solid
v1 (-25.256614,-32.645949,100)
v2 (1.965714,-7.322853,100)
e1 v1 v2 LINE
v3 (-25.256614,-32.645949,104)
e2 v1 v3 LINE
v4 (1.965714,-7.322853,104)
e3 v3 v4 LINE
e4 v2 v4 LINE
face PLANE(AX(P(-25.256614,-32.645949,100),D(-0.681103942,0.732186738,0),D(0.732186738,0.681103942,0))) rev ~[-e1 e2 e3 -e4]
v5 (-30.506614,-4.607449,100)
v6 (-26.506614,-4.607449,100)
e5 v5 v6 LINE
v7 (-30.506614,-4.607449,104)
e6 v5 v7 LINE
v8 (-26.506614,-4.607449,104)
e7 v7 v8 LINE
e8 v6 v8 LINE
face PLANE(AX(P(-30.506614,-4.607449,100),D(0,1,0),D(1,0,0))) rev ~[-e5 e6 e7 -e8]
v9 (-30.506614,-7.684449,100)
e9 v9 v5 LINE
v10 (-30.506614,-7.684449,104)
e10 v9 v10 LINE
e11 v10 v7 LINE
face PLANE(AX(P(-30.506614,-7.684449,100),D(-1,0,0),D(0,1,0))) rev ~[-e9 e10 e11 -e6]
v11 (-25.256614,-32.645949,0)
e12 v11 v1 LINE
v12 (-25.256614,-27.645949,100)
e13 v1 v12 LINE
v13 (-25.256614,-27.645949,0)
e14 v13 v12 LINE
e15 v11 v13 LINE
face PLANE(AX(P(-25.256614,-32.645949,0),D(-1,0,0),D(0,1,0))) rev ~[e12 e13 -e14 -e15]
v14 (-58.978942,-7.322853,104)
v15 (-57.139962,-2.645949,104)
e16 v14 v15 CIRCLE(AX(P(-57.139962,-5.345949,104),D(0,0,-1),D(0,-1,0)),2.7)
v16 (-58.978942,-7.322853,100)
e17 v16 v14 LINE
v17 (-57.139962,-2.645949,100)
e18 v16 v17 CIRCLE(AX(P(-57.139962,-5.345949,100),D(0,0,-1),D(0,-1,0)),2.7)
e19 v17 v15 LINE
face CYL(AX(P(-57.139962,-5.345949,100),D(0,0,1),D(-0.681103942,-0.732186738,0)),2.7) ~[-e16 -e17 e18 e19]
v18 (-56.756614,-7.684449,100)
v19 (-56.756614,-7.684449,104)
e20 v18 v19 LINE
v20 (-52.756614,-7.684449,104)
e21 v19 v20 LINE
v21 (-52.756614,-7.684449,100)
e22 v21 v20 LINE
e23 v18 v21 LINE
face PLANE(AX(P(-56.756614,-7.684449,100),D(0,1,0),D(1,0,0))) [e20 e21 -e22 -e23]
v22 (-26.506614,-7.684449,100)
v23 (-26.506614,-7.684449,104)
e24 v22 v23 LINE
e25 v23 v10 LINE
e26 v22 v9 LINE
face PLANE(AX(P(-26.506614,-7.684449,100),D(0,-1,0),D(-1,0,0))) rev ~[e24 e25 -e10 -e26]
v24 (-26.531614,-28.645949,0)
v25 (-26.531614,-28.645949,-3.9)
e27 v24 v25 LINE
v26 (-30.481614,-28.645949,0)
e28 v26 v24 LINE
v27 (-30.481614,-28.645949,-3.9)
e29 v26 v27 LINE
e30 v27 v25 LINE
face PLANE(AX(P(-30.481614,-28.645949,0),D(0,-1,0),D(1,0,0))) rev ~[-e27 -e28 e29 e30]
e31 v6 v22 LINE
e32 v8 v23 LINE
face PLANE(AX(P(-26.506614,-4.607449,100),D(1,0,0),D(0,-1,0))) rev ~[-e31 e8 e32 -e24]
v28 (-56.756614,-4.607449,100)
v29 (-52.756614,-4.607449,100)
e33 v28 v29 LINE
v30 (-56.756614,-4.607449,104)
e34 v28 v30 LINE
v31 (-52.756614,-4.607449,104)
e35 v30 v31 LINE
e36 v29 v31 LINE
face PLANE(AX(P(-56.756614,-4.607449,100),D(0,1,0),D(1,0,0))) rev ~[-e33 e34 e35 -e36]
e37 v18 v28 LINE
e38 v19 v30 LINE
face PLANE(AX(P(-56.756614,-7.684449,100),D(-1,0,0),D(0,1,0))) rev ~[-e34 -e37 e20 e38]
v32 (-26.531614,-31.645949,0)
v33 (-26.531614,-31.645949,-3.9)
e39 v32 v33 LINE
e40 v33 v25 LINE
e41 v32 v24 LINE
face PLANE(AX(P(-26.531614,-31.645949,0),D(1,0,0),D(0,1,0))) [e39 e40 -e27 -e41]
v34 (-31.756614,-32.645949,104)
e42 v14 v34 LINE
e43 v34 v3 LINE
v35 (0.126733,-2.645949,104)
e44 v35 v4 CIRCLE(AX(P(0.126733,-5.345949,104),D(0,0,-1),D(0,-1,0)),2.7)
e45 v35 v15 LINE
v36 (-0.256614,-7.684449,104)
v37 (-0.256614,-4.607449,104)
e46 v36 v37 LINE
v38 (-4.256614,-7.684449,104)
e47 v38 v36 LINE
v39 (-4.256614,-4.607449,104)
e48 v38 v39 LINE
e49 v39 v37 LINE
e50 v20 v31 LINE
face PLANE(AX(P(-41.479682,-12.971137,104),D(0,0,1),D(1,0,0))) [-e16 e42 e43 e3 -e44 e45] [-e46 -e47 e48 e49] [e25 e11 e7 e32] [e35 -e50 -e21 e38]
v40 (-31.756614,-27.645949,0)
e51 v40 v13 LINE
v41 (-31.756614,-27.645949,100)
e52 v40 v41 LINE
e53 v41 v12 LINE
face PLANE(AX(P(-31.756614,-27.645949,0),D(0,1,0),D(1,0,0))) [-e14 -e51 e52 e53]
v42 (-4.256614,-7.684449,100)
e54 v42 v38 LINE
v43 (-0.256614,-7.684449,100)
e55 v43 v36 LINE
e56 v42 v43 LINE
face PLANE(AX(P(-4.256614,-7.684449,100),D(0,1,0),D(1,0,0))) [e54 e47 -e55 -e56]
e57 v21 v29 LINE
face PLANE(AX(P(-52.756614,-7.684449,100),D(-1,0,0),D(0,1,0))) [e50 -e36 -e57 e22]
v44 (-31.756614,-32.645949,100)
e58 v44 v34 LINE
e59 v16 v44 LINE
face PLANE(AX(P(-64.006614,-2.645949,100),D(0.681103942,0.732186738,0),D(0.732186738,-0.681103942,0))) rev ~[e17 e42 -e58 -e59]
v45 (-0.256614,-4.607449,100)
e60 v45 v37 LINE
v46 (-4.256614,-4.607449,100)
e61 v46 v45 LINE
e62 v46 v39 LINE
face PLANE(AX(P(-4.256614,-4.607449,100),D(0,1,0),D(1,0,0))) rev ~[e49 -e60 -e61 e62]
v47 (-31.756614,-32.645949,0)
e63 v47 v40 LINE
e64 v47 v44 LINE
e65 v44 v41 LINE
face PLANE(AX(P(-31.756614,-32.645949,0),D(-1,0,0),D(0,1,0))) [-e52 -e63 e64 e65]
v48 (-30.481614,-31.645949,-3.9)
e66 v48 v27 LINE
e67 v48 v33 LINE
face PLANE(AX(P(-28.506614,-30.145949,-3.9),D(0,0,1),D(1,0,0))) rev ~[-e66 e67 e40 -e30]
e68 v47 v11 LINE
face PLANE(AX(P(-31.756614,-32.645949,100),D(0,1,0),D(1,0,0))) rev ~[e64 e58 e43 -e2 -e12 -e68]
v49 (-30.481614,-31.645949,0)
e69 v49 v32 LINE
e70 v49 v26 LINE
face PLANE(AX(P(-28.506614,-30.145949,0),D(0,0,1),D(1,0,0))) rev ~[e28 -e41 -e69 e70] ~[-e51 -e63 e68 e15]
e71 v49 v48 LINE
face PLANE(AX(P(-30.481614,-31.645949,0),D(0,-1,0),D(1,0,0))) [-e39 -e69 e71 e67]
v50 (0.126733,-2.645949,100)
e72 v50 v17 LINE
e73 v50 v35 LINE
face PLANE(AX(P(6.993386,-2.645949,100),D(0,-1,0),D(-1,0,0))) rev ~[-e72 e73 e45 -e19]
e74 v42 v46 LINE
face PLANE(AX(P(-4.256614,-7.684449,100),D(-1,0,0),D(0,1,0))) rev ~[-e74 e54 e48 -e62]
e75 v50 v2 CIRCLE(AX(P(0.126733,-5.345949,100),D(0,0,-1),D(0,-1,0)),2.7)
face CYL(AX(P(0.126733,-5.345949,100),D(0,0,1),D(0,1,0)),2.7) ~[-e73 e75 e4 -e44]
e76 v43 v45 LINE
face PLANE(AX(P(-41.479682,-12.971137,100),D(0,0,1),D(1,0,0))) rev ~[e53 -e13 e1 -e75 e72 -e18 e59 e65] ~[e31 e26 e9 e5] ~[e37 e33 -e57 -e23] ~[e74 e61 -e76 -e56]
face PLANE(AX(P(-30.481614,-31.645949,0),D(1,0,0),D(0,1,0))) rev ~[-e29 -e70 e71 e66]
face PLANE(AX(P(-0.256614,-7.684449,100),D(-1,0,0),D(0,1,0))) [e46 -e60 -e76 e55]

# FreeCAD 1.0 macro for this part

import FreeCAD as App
import Part
import Sketcher


def edges_at(feature, points):
    """Names of the edges that pass closest to the given points."""
    edges = feature.Shape.Edges
    near = lambda p: min(range(len(edges)), key=lambda i: edges[i].distToShape(Part.Vertex(*p))[0])
    return sorted({f"Edge{near(p) + 1}" for p in points})

doc = App.newDocument("Part")
body = doc.addObject("PartDesign::Body", "Body")

sketch1 = body.newObject("Sketcher::SketchObject", "Sketch")
sketch1.AttachmentSupport = (doc.getObject("XY_Plane"), [""])
sketch1.MapMode = "FlatFace"
sketch1.addGeometry(Part.LineSegment(App.Vector(-30.5, -28.6, 0), App.Vector(-30.5, -31.6, 0)), False)
sketch1.addGeometry(Part.LineSegment(App.Vector(-30.5, -31.6, 0), App.Vector(-26.5, -31.6, 0)), False)
sketch1.addGeometry(Part.LineSegment(App.Vector(-26.5, -31.6, 0), App.Vector(-26.5, -28.6, 0)), False)
sketch1.addGeometry(Part.LineSegment(App.Vector(-26.5, -28.6, 0), App.Vector(-30.5, -28.6, 0)), False)
sketch1.addConstraint(Sketcher.Constraint("Coincident", 0, 2, 1, 1))
sketch1.addConstraint(Sketcher.Constraint("Coincident", 1, 2, 2, 1))
sketch1.addConstraint(Sketcher.Constraint("Coincident", 2, 2, 3, 1))
sketch1.addConstraint(Sketcher.Constraint("Coincident", 3, 2, 0, 1))
sketch1.addConstraint(Sketcher.Constraint("Vertical", 0))
sketch1.addConstraint(Sketcher.Constraint("Horizontal", 1))
sketch1.addConstraint(Sketcher.Constraint("Vertical", 2))
sketch1.addConstraint(Sketcher.Constraint("Horizontal", 3))
sketch1.addConstraint(Sketcher.Constraint("DistanceY", 0, 2, 0, 1, 3.0))
sketch1.addConstraint(Sketcher.Constraint("DistanceX", 1, 1, 1, 2, 3.95))
sketch1.addConstraint(Sketcher.Constraint("DistanceY", 0, 2, -1, 1, 31.645949))
sketch1.addConstraint(Sketcher.Constraint("DistanceX", 0, 2, -1, 1, 30.481614))
pad1 = body.newObject("PartDesign::Pad", "Pad")
pad1.Profile = sketch1
pad1.Length = 3.9
pad1.Reversed = True

sketch2 = body.newObject("Sketcher::SketchObject", "Sketch001")
sketch2.AttachmentSupport = (doc.getObject("XY_Plane"), [""])
sketch2.MapMode = "FlatFace"
sketch2.addGeometry(Part.LineSegment(App.Vector(-32, -28, 0), App.Vector(-32, -33, 0)), False)
sketch2.addGeometry(Part.LineSegment(App.Vector(-32, -33, 0), App.Vector(-25, -33, 0)), False)
sketch2.addGeometry(Part.LineSegment(App.Vector(-25, -33, 0), App.Vector(-25, -28, 0)), False)
sketch2.addGeometry(Part.LineSegment(App.Vector(-25, -28, 0), App.Vector(-32, -28, 0)), False)
sketch2.addConstraint(Sketcher.Constraint("Coincident", 0, 2, 1, 1))
sketch2.addConstraint(Sketcher.Constraint("Coincident", 1, 2, 2, 1))
sketch2.addConstraint(Sketcher.Constraint("Coincident", 2, 2, 3, 1))
sketch2.addConstraint(Sketcher.Constraint("Coincident", 3, 2, 0, 1))
sketch2.addConstraint(Sketcher.Constraint("Vertical", 0))
sketch2.addConstraint(Sketcher.Constraint("Horizontal", 1))
sketch2.addConstraint(Sketcher.Constraint("Vertical", 2))
sketch2.addConstraint(Sketcher.Constraint("Horizontal", 3))
sketch2.addConstraint(Sketcher.Constraint("DistanceY", 0, 2, 0, 1, 5.0))
sketch2.addConstraint(Sketcher.Constraint("DistanceX", 1, 1, 1, 2, 6.5))
sketch2.addConstraint(Sketcher.Constraint("DistanceY", 0, 2, -1, 1, 32.645949))
sketch2.addConstraint(Sketcher.Constraint("DistanceX", 0, 2, -1, 1, 31.756614))
pad2 = body.newObject("PartDesign::Pad", "Pad001")
pad2.Profile = sketch2
pad2.Length = 100

sketch3 = body.newObject("Sketcher::SketchObject", "Sketch002")
sketch3.AttachmentSupport = (doc.getObject("XY_Plane"), [""])
sketch3.MapMode = "FlatFace"
sketch3.AttachmentOffset = App.Placement(App.Vector(0, 0, 100), App.Rotation())
sketch3.addGeometry(Part.LineSegment(App.Vector(-64, -2.6, 0), App.Vector(-31.8, -32.6, 0)), False)
sketch3.addGeometry(Part.LineSegment(App.Vector(-31.8, -32.6, 0), App.Vector(-25.3, -32.6, 0)), False)
sketch3.addGeometry(Part.LineSegment(App.Vector(-25.3, -32.6, 0), App.Vector(7, -2.6, 0)), False)
sketch3.addGeometry(Part.LineSegment(App.Vector(7, -2.6, 0), App.Vector(-64, -2.6, 0)), False)
sketch3.addGeometry(Part.LineSegment(App.Vector(-52.8, -7.7, 0), App.Vector(-56.8, -7.7, 0)), False)
sketch3.addGeometry(Part.LineSegment(App.Vector(-56.8, -7.7, 0), App.Vector(-56.8, -4.6, 0)), False)
sketch3.addGeometry(Part.LineSegment(App.Vector(-56.8, -4.6, 0), App.Vector(-52.8, -4.6, 0)), False)
sketch3.addGeometry(Part.LineSegment(App.Vector(-52.8, -4.6, 0), App.Vector(-52.8, -7.7, 0)), False)
sketch3.addGeometry(Part.LineSegment(App.Vector(-30.5, -4.6, 0), App.Vector(-26.5, -4.6, 0)), False)
sketch3.addGeometry(Part.LineSegment(App.Vector(-26.5, -4.6, 0), App.Vector(-26.5, -7.7, 0)), False)
sketch3.addGeometry(Part.LineSegment(App.Vector(-26.5, -7.7, 0), App.Vector(-30.5, -7.7, 0)), False)
sketch3.addGeometry(Part.LineSegment(App.Vector(-30.5, -7.7, 0), App.Vector(-30.5, -4.6, 0)), False)
sketch3.addGeometry(Part.LineSegment(App.Vector(-0.3, -7.7, 0), App.Vector(-4.3, -7.7, 0)), False)
sketch3.addGeometry(Part.LineSegment(App.Vector(-4.3, -7.7, 0), App.Vector(-4.3, -4.6, 0)), False)
sketch3.addGeometry(Part.LineSegment(App.Vector(-4.3, -4.6, 0), App.Vector(-0.3, -4.6, 0)), False)
sketch3.addGeometry(Part.LineSegment(App.Vector(-0.3, -4.6, 0), App.Vector(-0.3, -7.7, 0)), False)
sketch3.addConstraint(Sketcher.Constraint("Coincident", 0, 2, 1, 1))
sketch3.addConstraint(Sketcher.Constraint("Coincident", 1, 2, 2, 1))
sketch3.addConstraint(Sketcher.Constraint("Coincident", 2, 2, 3, 1))
sketch3.addConstraint(Sketcher.Constraint("Coincident", 3, 2, 0, 1))
sketch3.addConstraint(Sketcher.Constraint("Coincident", 4, 2, 5, 1))
sketch3.addConstraint(Sketcher.Constraint("Coincident", 5, 2, 6, 1))
sketch3.addConstraint(Sketcher.Constraint("Coincident", 6, 2, 7, 1))
sketch3.addConstraint(Sketcher.Constraint("Coincident", 7, 2, 4, 1))
sketch3.addConstraint(Sketcher.Constraint("Coincident", 8, 2, 9, 1))
sketch3.addConstraint(Sketcher.Constraint("Coincident", 9, 2, 10, 1))
sketch3.addConstraint(Sketcher.Constraint("Coincident", 10, 2, 11, 1))
sketch3.addConstraint(Sketcher.Constraint("Coincident", 11, 2, 8, 1))
sketch3.addConstraint(Sketcher.Constraint("Coincident", 12, 2, 13, 1))
sketch3.addConstraint(Sketcher.Constraint("Coincident", 13, 2, 14, 1))
sketch3.addConstraint(Sketcher.Constraint("Coincident", 14, 2, 15, 1))
sketch3.addConstraint(Sketcher.Constraint("Coincident", 15, 2, 12, 1))
sketch3.addConstraint(Sketcher.Constraint("Horizontal", 1))
sketch3.addConstraint(Sketcher.Constraint("Horizontal", 3))
sketch3.addConstraint(Sketcher.Constraint("Horizontal", 4))
sketch3.addConstraint(Sketcher.Constraint("Vertical", 5))
sketch3.addConstraint(Sketcher.Constraint("Horizontal", 6))
sketch3.addConstraint(Sketcher.Constraint("Vertical", 7))
sketch3.addConstraint(Sketcher.Constraint("Horizontal", 8))
sketch3.addConstraint(Sketcher.Constraint("Vertical", 9))
sketch3.addConstraint(Sketcher.Constraint("Horizontal", 10))
sketch3.addConstraint(Sketcher.Constraint("Vertical", 11))
sketch3.addConstraint(Sketcher.Constraint("Horizontal", 12))
sketch3.addConstraint(Sketcher.Constraint("Vertical", 13))
sketch3.addConstraint(Sketcher.Constraint("Horizontal", 14))
sketch3.addConstraint(Sketcher.Constraint("Vertical", 15))
sketch3.addConstraint(Sketcher.Constraint("Horizontal", 6, 2, 8, 2))
sketch3.addConstraint(Sketcher.Constraint("Horizontal", 7, 2, 9, 2))
sketch3.addConstraint(Sketcher.Constraint("Horizontal", 10, 2, 12, 2))
sketch3.addConstraint(Sketcher.Constraint("Horizontal", 11, 2, 13, 2))
sketch3.addConstraint(Sketcher.Constraint("Equal", 6, 8))
sketch3.addConstraint(Sketcher.Constraint("Equal", 10, 12))
sketch3.addConstraint(Sketcher.Constraint("Equal", 0, 2))
sketch3.addConstraint(Sketcher.Constraint("DistanceX", 3, 2, 3, 1, 71.0))
sketch3.addConstraint(Sketcher.Constraint("DistanceX", 4, 2, 4, 1, 4.0))
sketch3.addConstraint(Sketcher.Constraint("DistanceX", 1, 1, 1, 2, 6.5))
sketch3.addConstraint(Sketcher.Constraint("DistanceY", 1, 2, 2, 2, 30.0))
sketch3.addConstraint(Sketcher.Constraint("DistanceX", 4, 2, 0, 2, 25.0))
sketch3.addConstraint(Sketcher.Constraint("DistanceY", 5, 1, 5, 2, 3.077))
sketch3.addConstraint(Sketcher.Constraint("DistanceX", 6, 2, 8, 2, 26.25))
sketch3.addConstraint(Sketcher.Constraint("DistanceX", 12, 2, 2, 2, 11.25))
sketch3.addConstraint(Sketcher.Constraint("DistanceY", 4, 2, 3, 2, 5.0385))
sketch3.addConstraint(Sketcher.Constraint("DistanceY", 0, 2, -1, 1, 32.645949))
sketch3.addConstraint(Sketcher.Constraint("DistanceX", 0, 2, -1, 1, 31.756614))
pad3 = body.newObject("PartDesign::Pad", "Pad002")
pad3.Profile = sketch3
pad3.Length = 4
doc.recompute()

fillet = body.newObject("PartDesign::Fillet", "Fillet")
fillet.Base = (pad3, edges_at(pad3, [(-64.007, -2.646, 102), (6.993, -2.646, 102)]))
fillet.Radius = 2.7

doc.recompute()
